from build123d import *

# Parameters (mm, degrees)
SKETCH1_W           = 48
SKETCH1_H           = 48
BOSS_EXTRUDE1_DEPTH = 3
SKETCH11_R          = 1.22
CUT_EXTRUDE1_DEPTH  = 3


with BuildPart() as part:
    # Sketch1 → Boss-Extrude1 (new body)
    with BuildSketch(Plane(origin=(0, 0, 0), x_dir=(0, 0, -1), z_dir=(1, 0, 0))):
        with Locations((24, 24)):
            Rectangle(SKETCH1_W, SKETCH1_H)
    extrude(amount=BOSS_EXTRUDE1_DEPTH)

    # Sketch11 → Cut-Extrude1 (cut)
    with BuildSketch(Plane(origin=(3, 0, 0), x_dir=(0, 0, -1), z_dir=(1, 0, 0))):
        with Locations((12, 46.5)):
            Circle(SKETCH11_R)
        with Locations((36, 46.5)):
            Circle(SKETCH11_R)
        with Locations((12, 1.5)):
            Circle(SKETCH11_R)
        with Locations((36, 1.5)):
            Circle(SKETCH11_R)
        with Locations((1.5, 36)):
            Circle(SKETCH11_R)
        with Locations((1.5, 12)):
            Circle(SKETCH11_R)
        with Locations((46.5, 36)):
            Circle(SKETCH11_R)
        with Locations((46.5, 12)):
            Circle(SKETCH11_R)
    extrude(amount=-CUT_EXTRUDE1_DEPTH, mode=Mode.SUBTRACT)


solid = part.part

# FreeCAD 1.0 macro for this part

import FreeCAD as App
import Part
import Sketcher


def add_polygon(sketch, points):
    """Adds a closed chain of lines whose ends are joined by coincident constraints."""
    first, n = sketch.GeometryCount, len(points)
    for a, b in zip(points, points[1:] + points[:1]):
        sketch.addGeometry(Part.LineSegment(App.Vector(*a, 0), App.Vector(*b, 0)), False)
    for i in range(n):
        sketch.addConstraint(Sketcher.Constraint("Coincident", first + i, 2, first + (i + 1) % n, 1))

doc = App.newDocument("Part")
body = doc.addObject("PartDesign::Body", "Body")

# Sketch on YZ plane
sketch1 = body.newObject("Sketcher::SketchObject", "Sketch")
sketch1.AttachmentSupport = (doc.getObject("YZ_Plane"), [""])
sketch1.MapMode = "FlatFace"
add_polygon(sketch1, [(48, 0), (0, 0), (0, -48), (48, -48)])  # lines 0-3
sketch1.addConstraint(Sketcher.Constraint("Horizontal", 0))
sketch1.addConstraint(Sketcher.Constraint("Vertical", 1))
sketch1.addConstraint(Sketcher.Constraint("Horizontal", 2))
sketch1.addConstraint(Sketcher.Constraint("Vertical", 3))
sketch1.addConstraint(Sketcher.Constraint("Coincident", 0, 2, -1, 1))
sketch1.addConstraint(Sketcher.Constraint("Equal", 2, 1))
sketch1.addConstraint(Sketcher.Constraint("DistanceX", 0, 2, 0, 1, 48.0))
pad1 = body.newObject("PartDesign::Pad", "Pad")
pad1.Profile = sketch1
pad1.Length = 3

# Sketch on YZ plane
sketch2 = body.newObject("Sketcher::SketchObject", "Sketch001")
sketch2.AttachmentSupport = (doc.getObject("YZ_Plane"), [""])
sketch2.MapMode = "FlatFace"
sketch2.AttachmentOffset = App.Placement(App.Vector(0, 0, 3), App.Rotation())
sketch2.addGeometry(Part.Circle(App.Vector(46.5, -12, 0), App.Vector(0, 0, 1), 1.2), False)
sketch2.addGeometry(Part.Circle(App.Vector(46.5, -36, 0), App.Vector(0, 0, 1), 1.2), False)
sketch2.addGeometry(Part.Circle(App.Vector(1.5, -12, 0), App.Vector(0, 0, 1), 1.2), False)
sketch2.addGeometry(Part.Circle(App.Vector(1.5, -36, 0), App.Vector(0, 0, 1), 1.2), False)
sketch2.addGeometry(Part.Circle(App.Vector(36, -1.5, 0), App.Vector(0, 0, 1), 1.2), False)
sketch2.addGeometry(Part.Circle(App.Vector(12, -1.5, 0), App.Vector(0, 0, 1), 1.2), False)
sketch2.addGeometry(Part.Circle(App.Vector(36, -46.5, 0), App.Vector(0, 0, 1), 1.2), False)
sketch2.addGeometry(Part.Circle(App.Vector(12, -46.5, 0), App.Vector(0, 0, 1), 1.2), False)
sketch2.addConstraint(Sketcher.Constraint("Equal", 0, 1))
sketch2.addConstraint(Sketcher.Constraint("Equal", 1, 2))
sketch2.addConstraint(Sketcher.Constraint("Equal", 2, 3))
sketch2.addConstraint(Sketcher.Constraint("Equal", 3, 4))
sketch2.addConstraint(Sketcher.Constraint("Equal", 4, 5))
sketch2.addConstraint(Sketcher.Constraint("Equal", 5, 6))
sketch2.addConstraint(Sketcher.Constraint("Equal", 6, 7))
sketch2.addConstraint(Sketcher.Constraint("Horizontal", 0, 3, 2, 3))
sketch2.addConstraint(Sketcher.Constraint("Horizontal", 1, 3, 3, 3))
sketch2.addConstraint(Sketcher.Constraint("Horizontal", 4, 3, 5, 3))
sketch2.addConstraint(Sketcher.Constraint("Horizontal", 6, 3, 7, 3))
sketch2.addConstraint(Sketcher.Constraint("Vertical", 0, 3, 1, 3))
sketch2.addConstraint(Sketcher.Constraint("Vertical", 2, 3, 3, 3))
sketch2.addConstraint(Sketcher.Constraint("Vertical", 4, 3, 6, 3))
sketch2.addConstraint(Sketcher.Constraint("Vertical", 5, 3, 7, 3))
sketch2.addConstraint(Sketcher.Constraint("Diameter", 0, 2.44))
sketch2.addConstraint(Sketcher.Constraint("DistanceY", 0, 3, -1, 1, 12.0))
sketch2.addConstraint(Sketcher.Constraint("DistanceY", 1, 3, -1, 1, 36.0))
sketch2.addConstraint(Sketcher.Constraint("DistanceX", -1, 1, 4, 3, 36.0))
sketch2.addConstraint(Sketcher.Constraint("DistanceX", -1, 1, 5, 3, 12.0))
sketch2.addConstraint(Sketcher.Constraint("DistanceX", 2, 3, 0, 3, 45.0))
sketch2.addConstraint(Sketcher.Constraint("DistanceY", 6, 3, 4, 3, 45.0))
sketch2.addConstraint(Sketcher.Constraint("DistanceX", -1, 1, 0, 3, 46.5))
sketch2.addConstraint(Sketcher.Constraint("DistanceY", 4, 3, -1, 1, 1.5))
pocket1 = body.newObject("PartDesign::Pocket", "Pocket")
pocket1.Profile = sketch2
pocket1.Length = 3

doc.recompute()
